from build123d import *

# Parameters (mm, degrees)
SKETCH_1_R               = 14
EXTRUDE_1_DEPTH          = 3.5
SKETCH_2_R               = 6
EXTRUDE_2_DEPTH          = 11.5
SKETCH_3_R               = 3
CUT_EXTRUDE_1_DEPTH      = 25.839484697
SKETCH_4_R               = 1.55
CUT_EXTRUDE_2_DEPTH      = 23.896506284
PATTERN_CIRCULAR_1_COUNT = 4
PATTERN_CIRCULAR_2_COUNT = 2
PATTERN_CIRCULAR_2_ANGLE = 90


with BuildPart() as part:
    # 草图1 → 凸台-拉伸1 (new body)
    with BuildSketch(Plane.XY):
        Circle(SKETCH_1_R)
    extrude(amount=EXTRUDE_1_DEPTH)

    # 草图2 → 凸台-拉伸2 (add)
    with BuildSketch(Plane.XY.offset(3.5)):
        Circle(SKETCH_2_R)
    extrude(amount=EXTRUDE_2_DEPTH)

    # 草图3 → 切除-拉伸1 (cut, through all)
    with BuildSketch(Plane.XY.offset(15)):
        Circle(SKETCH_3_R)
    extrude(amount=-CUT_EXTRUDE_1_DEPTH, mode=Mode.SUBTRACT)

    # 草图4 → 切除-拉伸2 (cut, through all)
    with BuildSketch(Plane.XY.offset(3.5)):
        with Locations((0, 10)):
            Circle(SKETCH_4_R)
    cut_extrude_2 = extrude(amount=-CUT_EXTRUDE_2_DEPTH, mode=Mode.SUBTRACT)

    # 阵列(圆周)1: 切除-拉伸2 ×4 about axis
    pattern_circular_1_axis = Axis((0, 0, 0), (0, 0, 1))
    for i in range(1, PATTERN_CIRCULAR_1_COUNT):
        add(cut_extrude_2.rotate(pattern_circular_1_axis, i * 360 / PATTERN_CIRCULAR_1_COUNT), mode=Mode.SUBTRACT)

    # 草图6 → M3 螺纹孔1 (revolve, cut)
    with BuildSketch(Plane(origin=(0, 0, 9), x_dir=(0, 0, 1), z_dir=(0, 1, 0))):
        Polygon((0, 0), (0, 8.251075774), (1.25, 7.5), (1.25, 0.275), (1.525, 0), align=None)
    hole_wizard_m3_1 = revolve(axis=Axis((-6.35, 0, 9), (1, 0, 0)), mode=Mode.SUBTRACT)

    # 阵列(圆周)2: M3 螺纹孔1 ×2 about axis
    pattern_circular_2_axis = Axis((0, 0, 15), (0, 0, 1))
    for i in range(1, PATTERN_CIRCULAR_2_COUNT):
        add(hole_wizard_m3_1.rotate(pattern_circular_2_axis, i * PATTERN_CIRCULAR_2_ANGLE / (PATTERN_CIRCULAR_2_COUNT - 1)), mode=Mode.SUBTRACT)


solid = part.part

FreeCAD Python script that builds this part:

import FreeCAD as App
import Part
import Sketcher

V = App.Vector
Q = App.Units.Quantity


def add_polygon(sketch, points):
    """Adds a closed chain of lines whose ends are joined by coincident constraints."""
    first, n = sketch.GeometryCount, len(points)
    for a, b in zip(points, points[1:] + points[:1]):
        sketch.addGeometry(Part.LineSegment(App.Vector(*a, 0), App.Vector(*b, 0)), False)
    for i in range(n):
        sketch.addConstraint(Sketcher.Constraint("Coincident", first + i, 2, first + (i + 1) % n, 1))

doc = App.newDocument("Part")
body = doc.addObject("PartDesign::Body", "Body")

# Sketch on XY plane
sketch1 = doc.addObject("Sketcher::SketchObject", "Sketch")
body.addObject(sketch1)
sketch1.AttachmentSupport = (doc.XY_Plane, [""])
sketch1.MapMode = "FlatFace"
sketch1.addGeometry(Part.Circle(V(0, 0, 0), V(0, 0, 1), 14), False)
sketch1.addConstraint([
    Sketcher.Constraint("Coincident", 0, 3, -1, 1),
    Sketcher.Constraint("Diameter", 0, Q("28 mm")),
])
pad1 = doc.addObject("PartDesign::Pad", "Pad")
body.addObject(pad1)
pad1.Profile = sketch1
pad1.Length = 3.5

# Sketch on XY plane
sketch2 = doc.addObject("Sketcher::SketchObject", "Sketch001")
body.addObject(sketch2)
sketch2.AttachmentSupport = (doc.XY_Plane, [""])
sketch2.MapMode = "FlatFace"
sketch2.AttachmentOffset = App.Placement(V(0, 0, 3.5), App.Rotation())
sketch2.addGeometry(Part.Circle(V(0, 0, 0), V(0, 0, 1), 6), False)
sketch2.addConstraint([
    Sketcher.Constraint("Coincident", 0, 3, -1, 1),
    Sketcher.Constraint("Diameter", 0, Q("12 mm")),
])
pad2 = doc.addObject("PartDesign::Pad", "Pad001")
body.addObject(pad2)
pad2.Profile = sketch2
pad2.Length = 11.5

# Sketch on XY plane
sketch3 = doc.addObject("Sketcher::SketchObject", "Sketch002")
body.addObject(sketch3)
sketch3.AttachmentSupport = (doc.XY_Plane, [""])
sketch3.MapMode = "FlatFace"
sketch3.AttachmentOffset = App.Placement(V(0, 0, 15), App.Rotation())
sketch3.addGeometry(Part.Circle(V(0, 0, 0), V(0, 0, 1), 3), False)
sketch3.addConstraint([
    Sketcher.Constraint("Coincident", 0, 3, -1, 1),
    Sketcher.Constraint("Diameter", 0, Q("6 mm")),
])
pocket1 = doc.addObject("PartDesign::Pocket", "Pocket")
body.addObject(pocket1)
pocket1.Profile = sketch3
pocket1.Type = "ThroughAll"

# Sketch on XY plane
sketch4 = doc.addObject("Sketcher::SketchObject", "Sketch003")
body.addObject(sketch4)
sketch4.AttachmentSupport = (doc.XY_Plane, [""])
sketch4.MapMode = "FlatFace"
sketch4.AttachmentOffset = App.Placement(V(0, 0, 3.5), App.Rotation())
sketch4.addGeometry(Part.Circle(V(0, 10, 0), V(0, 0, 1), 1.6), False)
sketch4.addConstraint([
    Sketcher.Constraint("PointOnObject", 0, 3, -2),
    Sketcher.Constraint("Diameter", 0, Q("3.1 mm")),
    Sketcher.Constraint("DistanceY", -1, 1, 0, 3, Q("10 mm")),
])
pocket2 = doc.addObject("PartDesign::Pocket", "Pocket001")
body.addObject(pocket2)
pocket2.Profile = sketch4
pocket2.Type = "ThroughAll"
doc.recompute()

polarpattern = doc.addObject("PartDesign::PolarPattern", "PolarPattern")
body.addObject(polarpattern)
polarpattern.Originals = [pocket2]
polarpattern.Axis = (doc.Z_Axis, [""])
polarpattern.Angle = 360
polarpattern.Occurrences = 4
body.Tip = polarpattern

# Sketch on XZ plane
sketch5 = doc.addObject("Sketcher::SketchObject", "Sketch004")
body.addObject(sketch5)
sketch5.AttachmentSupport = (doc.XZ_Plane, [""])
sketch5.MapMode = "FlatFace"
add_polygon(sketch5, [(8.25, 9), (0, 9), (0, 10.53), (0.28, 10.25), (7.5, 10.25)])  # lines 0-4
sketch5.addGeometry(Part.LineSegment(V(0, 9, 0), V(8.25, 9, 0)), True)  # axis
sketch5.addConstraint([
    Sketcher.Constraint("Horizontal", 0),
    Sketcher.Constraint("Vertical", 1),
    Sketcher.Constraint("Horizontal", 3),
    Sketcher.Constraint("Horizontal", 5),
    Sketcher.Constraint("Coincident", 5, 1, 0, 2),
    Sketcher.Constraint("PointOnObject", 0, 2, -2),
    Sketcher.Constraint("Equal", 0, 5),
    Sketcher.Constraint("Angle", 2, Q("-45 deg")),
    Sketcher.Constraint("Angle", 4, Q("-59 deg")),
    Sketcher.Constraint("DistanceY", -1, 1, 0, 2, Q("9 mm")),
    Sketcher.Constraint("DistanceX", -1, 1, 3, 2, Q("7.5 mm")),
    Sketcher.Constraint("DistanceX", 3, 1, 3, 2, Q("7.225 mm")),
    Sketcher.Constraint("DistanceY", 1, 1, 1, 2, Q("1.525 mm")),
])
groove = doc.addObject("PartDesign::Groove", "Groove")
body.addObject(groove)
groove.Profile = sketch5
groove.ReferenceAxis = (sketch5, ["Axis0"])
groove.Angle = 360
doc.recompute()

polarpattern2 = doc.addObject("PartDesign::PolarPattern", "PolarPattern001")
body.addObject(polarpattern2)
polarpattern2.Originals = [groove]
polarpattern2.Axis = (doc.Z_Axis, [""])
polarpattern2.Angle = 90
polarpattern2.Occurrences = 2
body.Tip = polarpattern2

doc.recompute()
